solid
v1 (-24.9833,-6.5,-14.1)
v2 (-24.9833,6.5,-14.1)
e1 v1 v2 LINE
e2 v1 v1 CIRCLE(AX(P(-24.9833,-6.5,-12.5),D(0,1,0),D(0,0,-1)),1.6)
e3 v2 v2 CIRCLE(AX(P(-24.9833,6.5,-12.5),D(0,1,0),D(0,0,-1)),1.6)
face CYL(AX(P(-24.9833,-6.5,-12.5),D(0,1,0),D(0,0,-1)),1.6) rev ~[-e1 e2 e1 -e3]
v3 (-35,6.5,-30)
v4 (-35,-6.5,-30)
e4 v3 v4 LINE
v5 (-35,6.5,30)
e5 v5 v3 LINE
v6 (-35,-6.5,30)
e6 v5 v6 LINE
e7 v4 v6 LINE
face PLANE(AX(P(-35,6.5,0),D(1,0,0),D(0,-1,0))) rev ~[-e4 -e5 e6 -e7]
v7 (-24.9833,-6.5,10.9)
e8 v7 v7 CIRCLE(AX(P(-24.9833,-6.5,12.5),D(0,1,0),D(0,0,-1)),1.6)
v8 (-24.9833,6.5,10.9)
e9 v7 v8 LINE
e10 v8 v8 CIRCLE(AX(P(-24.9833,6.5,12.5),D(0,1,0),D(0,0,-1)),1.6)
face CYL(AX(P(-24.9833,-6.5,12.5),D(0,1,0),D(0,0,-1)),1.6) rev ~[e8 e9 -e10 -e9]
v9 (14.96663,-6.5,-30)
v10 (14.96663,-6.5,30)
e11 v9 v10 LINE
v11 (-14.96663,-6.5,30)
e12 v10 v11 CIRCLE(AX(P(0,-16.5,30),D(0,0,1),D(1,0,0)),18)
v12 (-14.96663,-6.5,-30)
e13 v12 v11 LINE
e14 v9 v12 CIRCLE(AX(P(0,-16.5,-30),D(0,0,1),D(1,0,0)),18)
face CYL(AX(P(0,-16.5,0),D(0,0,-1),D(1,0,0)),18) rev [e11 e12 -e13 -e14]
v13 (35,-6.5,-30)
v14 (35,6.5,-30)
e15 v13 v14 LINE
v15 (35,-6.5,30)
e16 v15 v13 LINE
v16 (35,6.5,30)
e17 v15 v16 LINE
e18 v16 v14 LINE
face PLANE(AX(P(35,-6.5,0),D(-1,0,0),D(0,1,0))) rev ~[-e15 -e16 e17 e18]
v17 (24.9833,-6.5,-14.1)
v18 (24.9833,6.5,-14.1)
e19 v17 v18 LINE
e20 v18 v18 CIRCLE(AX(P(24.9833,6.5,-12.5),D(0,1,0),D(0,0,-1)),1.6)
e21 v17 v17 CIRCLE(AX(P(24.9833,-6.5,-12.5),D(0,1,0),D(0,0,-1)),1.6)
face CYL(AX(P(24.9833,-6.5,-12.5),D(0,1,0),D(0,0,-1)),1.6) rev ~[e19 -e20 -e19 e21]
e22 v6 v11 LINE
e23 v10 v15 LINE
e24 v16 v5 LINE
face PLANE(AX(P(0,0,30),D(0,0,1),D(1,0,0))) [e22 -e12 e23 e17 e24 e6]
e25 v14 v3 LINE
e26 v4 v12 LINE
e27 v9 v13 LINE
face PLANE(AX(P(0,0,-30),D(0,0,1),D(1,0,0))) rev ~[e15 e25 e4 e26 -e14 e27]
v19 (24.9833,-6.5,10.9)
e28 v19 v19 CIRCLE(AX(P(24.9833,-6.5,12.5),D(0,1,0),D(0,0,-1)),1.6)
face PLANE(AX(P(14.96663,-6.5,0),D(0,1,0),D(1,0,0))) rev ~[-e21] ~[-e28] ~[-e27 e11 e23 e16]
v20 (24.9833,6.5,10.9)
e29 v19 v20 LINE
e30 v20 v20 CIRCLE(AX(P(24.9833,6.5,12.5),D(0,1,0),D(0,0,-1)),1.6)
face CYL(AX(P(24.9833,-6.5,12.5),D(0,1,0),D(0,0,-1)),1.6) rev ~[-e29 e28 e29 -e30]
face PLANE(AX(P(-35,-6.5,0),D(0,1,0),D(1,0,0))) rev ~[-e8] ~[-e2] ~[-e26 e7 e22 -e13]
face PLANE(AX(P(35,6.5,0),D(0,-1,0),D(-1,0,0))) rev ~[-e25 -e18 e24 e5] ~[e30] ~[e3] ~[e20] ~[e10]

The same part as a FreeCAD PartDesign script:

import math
import FreeCAD as App
import Part
import Sketcher
Q = App.Units.Quantity

doc = App.newDocument("Part")
body = doc.addObject("PartDesign::Body", "Body")

# Sketch on XY plane
sketch1 = body.newObject("Sketcher::SketchObject", "Sketch")
sketch1.AttachmentSupport = (doc.getObject("XY_Plane"), [""])
sketch1.MapMode = "FlatFace"
sketch1.addGeometry(Part.LineSegment(App.Vector(-35, 6.5, 0), App.Vector(-35, -6.5, 0)), False)
sketch1.addGeometry(Part.LineSegment(App.Vector(-35, -6.5, 0), App.Vector(-14.96663, -6.5, 0)), False)
sketch1.addGeometry(Part.ArcOfCircle(Part.Circle(App.Vector(0, -16.5, 0), App.Vector(0, 0, 1), 18), math.radians(33.748989), math.radians(146.251011)), False)
sketch1.addGeometry(Part.LineSegment(App.Vector(14.96663, -6.5, 0), App.Vector(35, -6.5, 0)), False)
sketch1.addGeometry(Part.LineSegment(App.Vector(35, -6.5, 0), App.Vector(35, 6.5, 0)), False)
sketch1.addGeometry(Part.LineSegment(App.Vector(35, 6.5, 0), App.Vector(-35, 6.5, 0)), False)
sketch1.addConstraint(Sketcher.Constraint("Coincident", 0, 2, 1, 1))
sketch1.addConstraint(Sketcher.Constraint("Coincident", 1, 2, 2, 2))
sketch1.addConstraint(Sketcher.Constraint("Coincident", 2, 1, 3, 1))
sketch1.addConstraint(Sketcher.Constraint("Coincident", 3, 2, 4, 1))
sketch1.addConstraint(Sketcher.Constraint("Coincident", 4, 2, 5, 1))
sketch1.addConstraint(Sketcher.Constraint("Coincident", 5, 2, 0, 1))
sketch1.addConstraint(Sketcher.Constraint("Vertical", 0))
sketch1.addConstraint(Sketcher.Constraint("Horizontal", 1))
sketch1.addConstraint(Sketcher.Constraint("Horizontal", 3))
sketch1.addConstraint(Sketcher.Constraint("Vertical", 4))
sketch1.addConstraint(Sketcher.Constraint("Horizontal", 5))
sketch1.addConstraint(Sketcher.Constraint("Symmetric", 0, 2, 4, 2, -1, 1))
sketch1.addConstraint(Sketcher.Constraint("Symmetric", 1, 2, 2, 1, -2))
sketch1.addConstraint(Sketcher.Constraint("Radius", 2, Q("18 mm")))
sketch1.addConstraint(Sketcher.Constraint("DistanceX", 5, 2, 5, 1, Q("70 mm")))
sketch1.addConstraint(Sketcher.Constraint("DistanceY", 0, 2, 0, 1, Q("13 mm")))
sketch1.addConstraint(Sketcher.Constraint("DistanceY", 2, 3, 0, 2, Q("10 mm")))
pad1 = body.newObject("PartDesign::Pad", "Pad")
pad1.Profile = sketch1
pad1.Length = 60
pad1.Midplane = True

# Sketch on XZ plane
sketch2 = body.newObject("Sketcher::SketchObject", "Sketch001")
sketch2.AttachmentSupport = (doc.getObject("XZ_Plane"), [""])
sketch2.MapMode = "FlatFace"
sketch2.AttachmentOffset = App.Placement(App.Vector(0, 0, 6.5), App.Rotation())
sketch2.addGeometry(Part.Circle(App.Vector(-24.9833, 12.5, 0), App.Vector(0, 0, 1), 1.6), False)
sketch2.addGeometry(Part.Circle(App.Vector(-24.9833, -12.5, 0), App.Vector(0, 0, 1), 1.6), False)
sketch2.addGeometry(Part.Circle(App.Vector(24.9833, -12.5, 0), App.Vector(0, 0, 1), 1.6), False)
sketch2.addGeometry(Part.Circle(App.Vector(24.9833, 12.5, 0), App.Vector(0, 0, 1), 1.6), False)
sketch2.addConstraint(Sketcher.Constraint("Equal", 0, 1))
sketch2.addConstraint(Sketcher.Constraint("Equal", 1, 2))
sketch2.addConstraint(Sketcher.Constraint("Equal", 2, 3))
sketch2.addConstraint(Sketcher.Constraint("Symmetric", 0, 3, 2, 3, -1, 1))
sketch2.addConstraint(Sketcher.Constraint("Symmetric", 1, 3, 3, 3, -1, 1))
sketch2.addConstraint(Sketcher.Constraint("Symmetric", 1, 3, 2, 3, -2))
sketch2.addConstraint(Sketcher.Constraint("Diameter", 0, Q("3.2 mm")))
sketch2.addConstraint(Sketcher.Constraint("DistanceY", 1, 3, 0, 3, Q("25 mm")))
sketch2.addConstraint(Sketcher.Constraint("DistanceX", 0, 3, -1, 1, Q("24.9833 mm")))
doc.recompute()
hole = body.newObject("PartDesign::Hole", "Hole")
hole.Profile = sketch2
hole.ThreadType = "None"
hole.Diameter = 3.2
hole.DepthType = "ThroughAll"

doc.recompute()
